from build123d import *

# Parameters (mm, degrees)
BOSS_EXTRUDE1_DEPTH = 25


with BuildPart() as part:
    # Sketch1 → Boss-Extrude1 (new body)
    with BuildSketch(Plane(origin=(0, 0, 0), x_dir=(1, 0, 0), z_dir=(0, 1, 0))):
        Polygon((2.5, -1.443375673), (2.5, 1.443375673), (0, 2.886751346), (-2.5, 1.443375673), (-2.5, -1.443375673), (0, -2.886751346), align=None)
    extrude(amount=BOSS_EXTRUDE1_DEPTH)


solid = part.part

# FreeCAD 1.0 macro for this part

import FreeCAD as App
import Part
import Sketcher

V = App.Vector
Q = App.Units.Quantity


def add_polygon(sketch, points):
    """Adds a closed chain of lines whose ends are joined by coincident constraints."""
    first, n = sketch.GeometryCount, len(points)
    for a, b in zip(points, points[1:] + points[:1]):
        sketch.addGeometry(Part.LineSegment(App.Vector(*a, 0), App.Vector(*b, 0)), False)
    for i in range(n):
        sketch.addConstraint(Sketcher.Constraint("Coincident", first + i, 2, first + (i + 1) % n, 1))

doc = App.newDocument("Part")
body = doc.addObject("PartDesign::Body", "Body")

# Sketch on XZ plane
sketch1 = doc.addObject("Sketcher::SketchObject", "Sketch")
body.addObject(sketch1)
sketch1.AttachmentSupport = (doc.XZ_Plane, [""])
sketch1.MapMode = "FlatFace"
add_polygon(sketch1, [(2.5, 1.4), (2.5, -1.4), (0, -2.9), (-2.5, -1.4), (-2.5, 1.4), (0, 2.9)])  # lines 0-5
sketch1.addConstraint(Sketcher.Constraint("Vertical", 0))
sketch1.addConstraint(Sketcher.Constraint("Vertical", 3))
sketch1.addConstraint(Sketcher.Constraint("Symmetric", 0, 2, 3, 2, -1, 1))
sketch1.addConstraint(Sketcher.Constraint("Symmetric", 1, 2, 4, 2, -1, 1))
sketch1.addConstraint(Sketcher.Constraint("PointOnObject", 1, 2, -2))
sketch1.addConstraint(Sketcher.Constraint("Parallel", 2, 5))
sketch1.addConstraint(Sketcher.Constraint("Horizontal", 0, 2, 2, 2))
sketch1.addConstraint(Sketcher.Constraint("Angle", 1, Q("-150 deg")))
sketch1.addConstraint(Sketcher.Constraint("DistanceX", 2, 2, 0, 2, 5.0))
sketch1.addConstraint(Sketcher.Constraint("DistanceY", 0, 2, 0, 1, 2.886751))
pad1 = doc.addObject("PartDesign::Pad", "Pad")
body.addObject(pad1)
pad1.Profile = sketch1
pad1.Length = 25
pad1.Reversed = True

doc.recompute()
